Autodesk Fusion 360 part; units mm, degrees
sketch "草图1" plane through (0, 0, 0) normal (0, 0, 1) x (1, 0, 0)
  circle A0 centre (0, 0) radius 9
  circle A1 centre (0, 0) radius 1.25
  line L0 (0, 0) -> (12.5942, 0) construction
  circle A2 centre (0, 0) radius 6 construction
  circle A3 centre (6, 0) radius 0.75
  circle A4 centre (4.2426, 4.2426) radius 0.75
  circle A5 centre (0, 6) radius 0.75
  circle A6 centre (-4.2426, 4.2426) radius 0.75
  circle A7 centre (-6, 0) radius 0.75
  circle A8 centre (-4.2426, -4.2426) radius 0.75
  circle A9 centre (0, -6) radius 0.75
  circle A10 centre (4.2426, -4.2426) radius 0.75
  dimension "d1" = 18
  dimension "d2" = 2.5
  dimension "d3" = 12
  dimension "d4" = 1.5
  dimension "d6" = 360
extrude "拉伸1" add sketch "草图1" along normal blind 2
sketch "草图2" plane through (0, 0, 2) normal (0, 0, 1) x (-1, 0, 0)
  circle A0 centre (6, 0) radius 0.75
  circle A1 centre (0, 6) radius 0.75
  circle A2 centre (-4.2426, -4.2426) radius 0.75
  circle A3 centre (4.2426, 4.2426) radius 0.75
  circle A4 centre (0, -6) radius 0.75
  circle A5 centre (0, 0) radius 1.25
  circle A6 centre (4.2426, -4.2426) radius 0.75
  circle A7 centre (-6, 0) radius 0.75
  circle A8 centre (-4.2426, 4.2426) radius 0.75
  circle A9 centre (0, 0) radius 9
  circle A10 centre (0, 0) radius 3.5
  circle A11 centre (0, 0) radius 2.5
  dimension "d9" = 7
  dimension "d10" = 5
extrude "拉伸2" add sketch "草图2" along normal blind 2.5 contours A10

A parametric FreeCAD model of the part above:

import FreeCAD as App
import Part
import Sketcher
Q = App.Units.Quantity

doc = App.newDocument("Part")
body = doc.addObject("PartDesign::Body", "Body")

sketch1 = body.newObject("Sketcher::SketchObject", "Sketch")
sketch1.AttachmentSupport = (doc.getObject("XY_Plane"), [""])
sketch1.MapMode = "FlatFace"
sketch1.addGeometry([
    Part.Circle(App.Vector(0, 0, 0), App.Vector(0, 0, 1), 9),
    Part.Circle(App.Vector(-4.2426, -4.2426, 0), App.Vector(0, 0, 1), 0.75),
    Part.Circle(App.Vector(0, -6, 0), App.Vector(0, 0, 1), 0.75),
    Part.Circle(App.Vector(4.2426, -4.2426, 0), App.Vector(0, 0, 1), 0.75),
    Part.Circle(App.Vector(-6, 0, 0), App.Vector(0, 0, 1), 0.75),
    Part.Circle(App.Vector(-4.2426, 4.2426, 0), App.Vector(0, 0, 1), 0.75),
    Part.Circle(App.Vector(0, 0, 0), App.Vector(0, 0, 1), 1.25),
    Part.Circle(App.Vector(4.2426, 4.2426, 0), App.Vector(0, 0, 1), 0.75),
    Part.Circle(App.Vector(6, 0, 0), App.Vector(0, 0, 1), 0.75),
    Part.Circle(App.Vector(0, 6, 0), App.Vector(0, 0, 1), 0.75),
], False)
sketch1.addConstraint([
    Sketcher.Constraint("Coincident", 0, 3, -1, 1),
    Sketcher.Constraint("Coincident", 6, 3, -1, 1),
    Sketcher.Constraint("Equal", 1, 2),
    Sketcher.Constraint("Equal", 2, 3),
    Sketcher.Constraint("Equal", 3, 4),
    Sketcher.Constraint("Equal", 4, 5),
    Sketcher.Constraint("Equal", 5, 7),
    Sketcher.Constraint("Equal", 7, 8),
    Sketcher.Constraint("Equal", 8, 9),
    Sketcher.Constraint("Symmetric", 3, 3, 5, 3, -1, 1),
    Sketcher.Constraint("Symmetric", 1, 3, 7, 3, -1, 1),
    Sketcher.Constraint("Symmetric", 4, 3, 8, 3, -1, 1),
    Sketcher.Constraint("Symmetric", 2, 3, 9, 3, -1, 1),
    Sketcher.Constraint("Symmetric", 1, 3, 3, 3, -2),
    Sketcher.Constraint("PointOnObject", 2, 3, -2),
    Sketcher.Constraint("PointOnObject", 4, 3, -1),
    Sketcher.Constraint("Diameter", 0, Q("18 mm")),
    Sketcher.Constraint("Diameter", 1, Q("1.5 mm")),
    Sketcher.Constraint("Diameter", 6, Q("2.5 mm")),
    Sketcher.Constraint("DistanceY", 2, 3, -1, 1, Q("6 mm")),
    Sketcher.Constraint("DistanceX", 4, 3, -1, 1, Q("6 mm")),
    Sketcher.Constraint("DistanceX", 1, 3, -1, 1, Q("4.2426 mm")),
    Sketcher.Constraint("DistanceY", 1, 3, -1, 1, Q("4.2426 mm")),
])
pad1 = body.newObject("PartDesign::Pad", "Pad")
pad1.Profile = sketch1
pad1.Length = 2

sketch2 = body.newObject("Sketcher::SketchObject", "Sketch001")
sketch2.AttachmentSupport = (doc.getObject("XY_Plane"), [""])
sketch2.MapMode = "FlatFace"
sketch2.AttachmentOffset = App.Placement(App.Vector(0, 0, 2), App.Rotation())
sketch2.addGeometry([
    Part.Circle(App.Vector(0, 0, 0), App.Vector(0, 0, 1), 3.5),
    Part.Circle(App.Vector(0, 0, 0), App.Vector(0, 0, 1), 2.5),
], False)
sketch2.addConstraint([
    Sketcher.Constraint("Coincident", 0, 3, -1, 1),
    Sketcher.Constraint("Coincident", 1, 3, -1, 1),
    Sketcher.Constraint("Diameter", 0, Q("7 mm")),
    Sketcher.Constraint("Diameter", 1, Q("5 mm")),
])
pad2 = body.newObject("PartDesign::Pad", "Pad001")
pad2.Profile = sketch2
pad2.Length = 2.5

doc.recompute()
